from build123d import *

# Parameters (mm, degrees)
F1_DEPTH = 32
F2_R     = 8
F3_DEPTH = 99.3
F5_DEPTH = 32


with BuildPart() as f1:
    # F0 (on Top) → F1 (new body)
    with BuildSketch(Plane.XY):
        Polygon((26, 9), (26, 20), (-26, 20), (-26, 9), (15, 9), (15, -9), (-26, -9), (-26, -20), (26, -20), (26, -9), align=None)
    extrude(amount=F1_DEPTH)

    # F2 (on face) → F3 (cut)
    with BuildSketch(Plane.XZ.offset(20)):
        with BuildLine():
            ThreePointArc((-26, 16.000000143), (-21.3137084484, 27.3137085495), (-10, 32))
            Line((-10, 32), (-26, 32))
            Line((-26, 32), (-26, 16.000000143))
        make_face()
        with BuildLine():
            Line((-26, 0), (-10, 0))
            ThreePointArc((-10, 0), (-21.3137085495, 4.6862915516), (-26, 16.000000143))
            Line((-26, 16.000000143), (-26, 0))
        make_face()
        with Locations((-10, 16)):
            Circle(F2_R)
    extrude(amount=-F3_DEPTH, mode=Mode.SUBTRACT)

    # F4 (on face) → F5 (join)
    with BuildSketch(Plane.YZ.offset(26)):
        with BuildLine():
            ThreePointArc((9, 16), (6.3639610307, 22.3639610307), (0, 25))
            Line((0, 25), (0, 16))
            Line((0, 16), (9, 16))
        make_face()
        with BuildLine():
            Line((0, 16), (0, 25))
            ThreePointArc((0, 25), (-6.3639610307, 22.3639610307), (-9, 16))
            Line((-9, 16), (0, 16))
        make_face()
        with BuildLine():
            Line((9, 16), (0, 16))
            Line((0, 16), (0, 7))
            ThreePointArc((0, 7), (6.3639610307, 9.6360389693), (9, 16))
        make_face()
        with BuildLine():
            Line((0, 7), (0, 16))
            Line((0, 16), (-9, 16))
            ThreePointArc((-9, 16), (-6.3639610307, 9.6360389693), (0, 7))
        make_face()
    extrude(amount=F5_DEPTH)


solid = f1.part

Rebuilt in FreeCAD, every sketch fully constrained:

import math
import FreeCAD as App
import Part
import Sketcher

V = App.Vector
Q = App.Units.Quantity

doc = App.newDocument("Part")
body = doc.addObject("PartDesign::Body", "Body")

sketch1 = body.newObject("Sketcher::SketchObject", "Sketch")
sketch1.AttachmentSupport = (doc.getObject("XY_Plane"), [""])
sketch1.MapMode = "FlatFace"
sketch1.addGeometry([
    Part.LineSegment(V(26, 20, 0), V(-26, 20, 0)),
    Part.LineSegment(V(-26, 20, 0), V(-26, 9, 0)),
    Part.LineSegment(V(-26, 9, 0), V(15, 9, 0)),
    Part.LineSegment(V(15, 9, 0), V(15, -9, 0)),
    Part.LineSegment(V(15, -9, 0), V(-26, -9, 0)),
    Part.LineSegment(V(-26, -9, 0), V(-26, -20, 0)),
    Part.LineSegment(V(-26, -20, 0), V(26, -20, 0)),
    Part.LineSegment(V(26, -20, 0), V(26, 20, 0)),
], False)
sketch1.addConstraint([
    Sketcher.Constraint("Coincident", 0, 2, 1, 1),
    Sketcher.Constraint("Coincident", 1, 2, 2, 1),
    Sketcher.Constraint("Coincident", 2, 2, 3, 1),
    Sketcher.Constraint("Coincident", 3, 2, 4, 1),
    Sketcher.Constraint("Coincident", 4, 2, 5, 1),
    Sketcher.Constraint("Coincident", 5, 2, 6, 1),
    Sketcher.Constraint("Coincident", 6, 2, 7, 1),
    Sketcher.Constraint("Coincident", 7, 2, 0, 1),
    Sketcher.Constraint("Horizontal", 0),
    Sketcher.Constraint("Vertical", 1),
    Sketcher.Constraint("Horizontal", 2),
    Sketcher.Constraint("Vertical", 3),
    Sketcher.Constraint("Horizontal", 4),
    Sketcher.Constraint("Vertical", 5),
    Sketcher.Constraint("Horizontal", 6),
    Sketcher.Constraint("Vertical", 7),
    Sketcher.Constraint("Symmetric", 0, 2, 6, 2, -1, 1),
    Sketcher.Constraint("Symmetric", 1, 2, 4, 2, -1),
    Sketcher.Constraint("DistanceX", 0, 2, 0, 1, Q("52 mm")),
    Sketcher.Constraint("DistanceX", 2, 1, 2, 2, Q("41 mm")),
    Sketcher.Constraint("DistanceY", 1, 2, 1, 1, Q("11 mm")),
    Sketcher.Constraint("DistanceY", 3, 2, 3, 1, Q("18 mm")),
])
pad1 = body.newObject("PartDesign::Pad", "Pad")
pad1.Profile = sketch1
pad1.Length = 32

sketch2 = body.newObject("Sketcher::SketchObject", "Sketch001")
sketch2.AttachmentSupport = (doc.getObject("XZ_Plane"), [""])
sketch2.MapMode = "FlatFace"
sketch2.AttachmentOffset = App.Placement(V(0, 0, 20), App.Rotation())
sketch2.addGeometry([
    Part.ArcOfCircle(Part.Circle(V(-10, 16, 0), V(0, 0, 1), 16), math.radians(90), math.radians(180)),
    Part.LineSegment(V(-10, 32, 0), V(-26, 32, 0)),
    Part.LineSegment(V(-26, 32, 0), V(-26, 16, 0)),
    Part.LineSegment(V(-26, 0, 0), V(-10, 0, 0)),
    Part.ArcOfCircle(Part.Circle(V(-10, 16, 0), V(0, 0, 1), 16), math.radians(180), math.radians(270)),
    Part.LineSegment(V(-26, 16, 0), V(-26, 0, 0)),
    Part.Circle(V(-10, 16, 0), V(0, 0, 1), 8),
], False)
sketch2.addConstraint([
    Sketcher.Constraint("Tangent", 0, 1, 1, 1),
    Sketcher.Constraint("Coincident", 1, 2, 2, 1),
    Sketcher.Constraint("Tangent", 2, 2, 0, 2),
    Sketcher.Constraint("Tangent", 3, 2, 4, 2),
    Sketcher.Constraint("Tangent", 4, 1, 5, 1),
    Sketcher.Constraint("Coincident", 5, 2, 3, 1),
    Sketcher.Constraint("Horizontal", 1),
    Sketcher.Constraint("Vertical", 2),
    Sketcher.Constraint("Horizontal", 3),
    Sketcher.Constraint("Vertical", 5),
    Sketcher.Constraint("Coincident", 4, 3, 0, 3),
    Sketcher.Constraint("Coincident", 6, 3, 0, 3),
    Sketcher.Constraint("Equal", 0, 4),
    Sketcher.Constraint("PointOnObject", 3, 2, -1),
    Sketcher.Constraint("Diameter", 6, Q("16 mm")),
    Sketcher.Constraint("Radius", 0, Q("16 mm")),
    Sketcher.Constraint("DistanceX", 0, 3, -1, 1, Q("10 mm")),
])
pocket1 = body.newObject("PartDesign::Pocket", "Pocket")
pocket1.Profile = sketch2
pocket1.Length = 99.3

sketch3 = body.newObject("Sketcher::SketchObject", "Sketch002")
sketch3.AttachmentSupport = (doc.getObject("YZ_Plane"), [""])
sketch3.MapMode = "FlatFace"
sketch3.AttachmentOffset = App.Placement(V(0, 0, 26), App.Rotation())
sketch3.addGeometry([
    Part.ArcOfCircle(Part.Circle(V(0, 16, 0), V(0, 0, 1), 9), math.radians(0), math.radians(90)),
    Part.ArcOfCircle(Part.Circle(V(0, 16, 0), V(0, 0, 1), 9), math.radians(90), math.radians(180)),
    Part.ArcOfCircle(Part.Circle(V(0, 16, 0), V(0, 0, 1), 9), math.radians(180), math.radians(270)),
    Part.ArcOfCircle(Part.Circle(V(0, 16, 0), V(0, 0, 1), 9), math.radians(-90), math.radians(0)),
], False)
sketch3.addConstraint([
    Sketcher.Constraint("Tangent", 0, 2, 1, 1),
    Sketcher.Constraint("Tangent", 1, 2, 2, 1),
    Sketcher.Constraint("Tangent", 2, 2, 3, 1),
    Sketcher.Constraint("Tangent", 3, 2, 0, 1),
    Sketcher.Constraint("Equal", 0, 1),
    Sketcher.Constraint("Symmetric", 1, 2, 3, 2, -2),
    Sketcher.Constraint("PointOnObject", 0, 2, -2),
    Sketcher.Constraint("PointOnObject", 2, 2, -2),
    Sketcher.Constraint("Horizontal", 3, 3, 1, 2),
    Sketcher.Constraint("Radius", 0, Q("9 mm")),
    Sketcher.Constraint("DistanceY", -1, 1, 0, 3, Q("16 mm")),
])
pad2 = body.newObject("PartDesign::Pad", "Pad001")
pad2.Profile = sketch3
pad2.Length = 32

doc.recompute()
